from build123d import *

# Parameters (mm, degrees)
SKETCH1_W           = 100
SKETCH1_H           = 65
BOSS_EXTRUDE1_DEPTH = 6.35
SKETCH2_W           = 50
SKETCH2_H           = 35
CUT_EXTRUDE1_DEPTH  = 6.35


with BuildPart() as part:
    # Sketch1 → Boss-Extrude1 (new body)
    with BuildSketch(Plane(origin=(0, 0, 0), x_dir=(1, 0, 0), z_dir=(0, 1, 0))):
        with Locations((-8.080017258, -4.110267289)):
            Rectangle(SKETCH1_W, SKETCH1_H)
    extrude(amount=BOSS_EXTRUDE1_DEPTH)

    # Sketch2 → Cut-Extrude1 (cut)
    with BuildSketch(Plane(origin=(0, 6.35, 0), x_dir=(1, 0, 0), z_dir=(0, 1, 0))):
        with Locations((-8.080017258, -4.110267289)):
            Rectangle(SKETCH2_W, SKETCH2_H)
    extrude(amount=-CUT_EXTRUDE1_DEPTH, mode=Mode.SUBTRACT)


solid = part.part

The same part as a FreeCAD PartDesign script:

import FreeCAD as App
import Part
import Sketcher
from FreeCAD import Vector
Q = App.Units.Quantity


def add_polygon(sketch, points):
    """Adds a closed chain of lines whose ends are joined by coincident constraints."""
    first, n = sketch.GeometryCount, len(points)
    for a, b in zip(points, points[1:] + points[:1]):
        sketch.addGeometry(Part.LineSegment(App.Vector(*a, 0), App.Vector(*b, 0)), False)
    for i in range(n):
        sketch.addConstraint(Sketcher.Constraint("Coincident", first + i, 2, first + (i + 1) % n, 1))

doc = App.newDocument("Part")
body = doc.addObject("PartDesign::Body", "Body")

# Sketch on XZ plane
sketch1 = body.newObject("Sketcher::SketchObject", "Sketch")
sketch1.AttachmentSupport = (doc.getObject("XZ_Plane"), [""])
sketch1.MapMode = "FlatFace"
add_polygon(sketch1, [(-58, -28), (-58, 37), (42, 37), (42, -28)])  # lines 0-3
sketch1.addConstraint(Sketcher.Constraint("Vertical", 0))
sketch1.addConstraint(Sketcher.Constraint("Horizontal", 1))
sketch1.addConstraint(Sketcher.Constraint("Vertical", 2))
sketch1.addConstraint(Sketcher.Constraint("Horizontal", 3))
sketch1.addConstraint(Sketcher.Constraint("DistanceX", 1, 1, 1, 2, Q("100 mm")))
sketch1.addConstraint(Sketcher.Constraint("DistanceY", 0, 1, 0, 2, Q("65 mm")))
sketch1.addConstraint(Sketcher.Constraint("DistanceX", 0, 2, -1, 1, Q("58.080017 mm")))
sketch1.addConstraint(Sketcher.Constraint("DistanceY", -1, 1, 0, 2, Q("36.610267 mm")))
pad1 = body.newObject("PartDesign::Pad", "Pad")
pad1.Profile = sketch1
pad1.Length = 6.35
pad1.Reversed = True

# Sketch on XZ plane
sketch2 = body.newObject("Sketcher::SketchObject", "Sketch001")
sketch2.AttachmentSupport = (doc.getObject("XZ_Plane"), [""])
sketch2.MapMode = "FlatFace"
sketch2.AttachmentOffset = App.Placement(Vector(0, 0, -6.35), App.Rotation())
add_polygon(sketch2, [(-33, -13), (-33, 22), (17, 22), (17, -13)])  # lines 0-3
sketch2.addConstraint(Sketcher.Constraint("Vertical", 0))
sketch2.addConstraint(Sketcher.Constraint("Horizontal", 1))
sketch2.addConstraint(Sketcher.Constraint("Vertical", 2))
sketch2.addConstraint(Sketcher.Constraint("Horizontal", 3))
sketch2.addConstraint(Sketcher.Constraint("DistanceX", 1, 1, 1, 2, Q("50 mm")))
sketch2.addConstraint(Sketcher.Constraint("DistanceY", 0, 1, 0, 2, Q("35 mm")))
sketch2.addConstraint(Sketcher.Constraint("DistanceX", 0, 2, -1, 1, Q("33.080017 mm")))
sketch2.addConstraint(Sketcher.Constraint("DistanceY", -1, 1, 0, 2, Q("21.610267 mm")))
pocket1 = body.newObject("PartDesign::Pocket", "Pocket")
pocket1.Profile = sketch2
pocket1.Length = 6.35
pocket1.Reversed = True

doc.recompute()
